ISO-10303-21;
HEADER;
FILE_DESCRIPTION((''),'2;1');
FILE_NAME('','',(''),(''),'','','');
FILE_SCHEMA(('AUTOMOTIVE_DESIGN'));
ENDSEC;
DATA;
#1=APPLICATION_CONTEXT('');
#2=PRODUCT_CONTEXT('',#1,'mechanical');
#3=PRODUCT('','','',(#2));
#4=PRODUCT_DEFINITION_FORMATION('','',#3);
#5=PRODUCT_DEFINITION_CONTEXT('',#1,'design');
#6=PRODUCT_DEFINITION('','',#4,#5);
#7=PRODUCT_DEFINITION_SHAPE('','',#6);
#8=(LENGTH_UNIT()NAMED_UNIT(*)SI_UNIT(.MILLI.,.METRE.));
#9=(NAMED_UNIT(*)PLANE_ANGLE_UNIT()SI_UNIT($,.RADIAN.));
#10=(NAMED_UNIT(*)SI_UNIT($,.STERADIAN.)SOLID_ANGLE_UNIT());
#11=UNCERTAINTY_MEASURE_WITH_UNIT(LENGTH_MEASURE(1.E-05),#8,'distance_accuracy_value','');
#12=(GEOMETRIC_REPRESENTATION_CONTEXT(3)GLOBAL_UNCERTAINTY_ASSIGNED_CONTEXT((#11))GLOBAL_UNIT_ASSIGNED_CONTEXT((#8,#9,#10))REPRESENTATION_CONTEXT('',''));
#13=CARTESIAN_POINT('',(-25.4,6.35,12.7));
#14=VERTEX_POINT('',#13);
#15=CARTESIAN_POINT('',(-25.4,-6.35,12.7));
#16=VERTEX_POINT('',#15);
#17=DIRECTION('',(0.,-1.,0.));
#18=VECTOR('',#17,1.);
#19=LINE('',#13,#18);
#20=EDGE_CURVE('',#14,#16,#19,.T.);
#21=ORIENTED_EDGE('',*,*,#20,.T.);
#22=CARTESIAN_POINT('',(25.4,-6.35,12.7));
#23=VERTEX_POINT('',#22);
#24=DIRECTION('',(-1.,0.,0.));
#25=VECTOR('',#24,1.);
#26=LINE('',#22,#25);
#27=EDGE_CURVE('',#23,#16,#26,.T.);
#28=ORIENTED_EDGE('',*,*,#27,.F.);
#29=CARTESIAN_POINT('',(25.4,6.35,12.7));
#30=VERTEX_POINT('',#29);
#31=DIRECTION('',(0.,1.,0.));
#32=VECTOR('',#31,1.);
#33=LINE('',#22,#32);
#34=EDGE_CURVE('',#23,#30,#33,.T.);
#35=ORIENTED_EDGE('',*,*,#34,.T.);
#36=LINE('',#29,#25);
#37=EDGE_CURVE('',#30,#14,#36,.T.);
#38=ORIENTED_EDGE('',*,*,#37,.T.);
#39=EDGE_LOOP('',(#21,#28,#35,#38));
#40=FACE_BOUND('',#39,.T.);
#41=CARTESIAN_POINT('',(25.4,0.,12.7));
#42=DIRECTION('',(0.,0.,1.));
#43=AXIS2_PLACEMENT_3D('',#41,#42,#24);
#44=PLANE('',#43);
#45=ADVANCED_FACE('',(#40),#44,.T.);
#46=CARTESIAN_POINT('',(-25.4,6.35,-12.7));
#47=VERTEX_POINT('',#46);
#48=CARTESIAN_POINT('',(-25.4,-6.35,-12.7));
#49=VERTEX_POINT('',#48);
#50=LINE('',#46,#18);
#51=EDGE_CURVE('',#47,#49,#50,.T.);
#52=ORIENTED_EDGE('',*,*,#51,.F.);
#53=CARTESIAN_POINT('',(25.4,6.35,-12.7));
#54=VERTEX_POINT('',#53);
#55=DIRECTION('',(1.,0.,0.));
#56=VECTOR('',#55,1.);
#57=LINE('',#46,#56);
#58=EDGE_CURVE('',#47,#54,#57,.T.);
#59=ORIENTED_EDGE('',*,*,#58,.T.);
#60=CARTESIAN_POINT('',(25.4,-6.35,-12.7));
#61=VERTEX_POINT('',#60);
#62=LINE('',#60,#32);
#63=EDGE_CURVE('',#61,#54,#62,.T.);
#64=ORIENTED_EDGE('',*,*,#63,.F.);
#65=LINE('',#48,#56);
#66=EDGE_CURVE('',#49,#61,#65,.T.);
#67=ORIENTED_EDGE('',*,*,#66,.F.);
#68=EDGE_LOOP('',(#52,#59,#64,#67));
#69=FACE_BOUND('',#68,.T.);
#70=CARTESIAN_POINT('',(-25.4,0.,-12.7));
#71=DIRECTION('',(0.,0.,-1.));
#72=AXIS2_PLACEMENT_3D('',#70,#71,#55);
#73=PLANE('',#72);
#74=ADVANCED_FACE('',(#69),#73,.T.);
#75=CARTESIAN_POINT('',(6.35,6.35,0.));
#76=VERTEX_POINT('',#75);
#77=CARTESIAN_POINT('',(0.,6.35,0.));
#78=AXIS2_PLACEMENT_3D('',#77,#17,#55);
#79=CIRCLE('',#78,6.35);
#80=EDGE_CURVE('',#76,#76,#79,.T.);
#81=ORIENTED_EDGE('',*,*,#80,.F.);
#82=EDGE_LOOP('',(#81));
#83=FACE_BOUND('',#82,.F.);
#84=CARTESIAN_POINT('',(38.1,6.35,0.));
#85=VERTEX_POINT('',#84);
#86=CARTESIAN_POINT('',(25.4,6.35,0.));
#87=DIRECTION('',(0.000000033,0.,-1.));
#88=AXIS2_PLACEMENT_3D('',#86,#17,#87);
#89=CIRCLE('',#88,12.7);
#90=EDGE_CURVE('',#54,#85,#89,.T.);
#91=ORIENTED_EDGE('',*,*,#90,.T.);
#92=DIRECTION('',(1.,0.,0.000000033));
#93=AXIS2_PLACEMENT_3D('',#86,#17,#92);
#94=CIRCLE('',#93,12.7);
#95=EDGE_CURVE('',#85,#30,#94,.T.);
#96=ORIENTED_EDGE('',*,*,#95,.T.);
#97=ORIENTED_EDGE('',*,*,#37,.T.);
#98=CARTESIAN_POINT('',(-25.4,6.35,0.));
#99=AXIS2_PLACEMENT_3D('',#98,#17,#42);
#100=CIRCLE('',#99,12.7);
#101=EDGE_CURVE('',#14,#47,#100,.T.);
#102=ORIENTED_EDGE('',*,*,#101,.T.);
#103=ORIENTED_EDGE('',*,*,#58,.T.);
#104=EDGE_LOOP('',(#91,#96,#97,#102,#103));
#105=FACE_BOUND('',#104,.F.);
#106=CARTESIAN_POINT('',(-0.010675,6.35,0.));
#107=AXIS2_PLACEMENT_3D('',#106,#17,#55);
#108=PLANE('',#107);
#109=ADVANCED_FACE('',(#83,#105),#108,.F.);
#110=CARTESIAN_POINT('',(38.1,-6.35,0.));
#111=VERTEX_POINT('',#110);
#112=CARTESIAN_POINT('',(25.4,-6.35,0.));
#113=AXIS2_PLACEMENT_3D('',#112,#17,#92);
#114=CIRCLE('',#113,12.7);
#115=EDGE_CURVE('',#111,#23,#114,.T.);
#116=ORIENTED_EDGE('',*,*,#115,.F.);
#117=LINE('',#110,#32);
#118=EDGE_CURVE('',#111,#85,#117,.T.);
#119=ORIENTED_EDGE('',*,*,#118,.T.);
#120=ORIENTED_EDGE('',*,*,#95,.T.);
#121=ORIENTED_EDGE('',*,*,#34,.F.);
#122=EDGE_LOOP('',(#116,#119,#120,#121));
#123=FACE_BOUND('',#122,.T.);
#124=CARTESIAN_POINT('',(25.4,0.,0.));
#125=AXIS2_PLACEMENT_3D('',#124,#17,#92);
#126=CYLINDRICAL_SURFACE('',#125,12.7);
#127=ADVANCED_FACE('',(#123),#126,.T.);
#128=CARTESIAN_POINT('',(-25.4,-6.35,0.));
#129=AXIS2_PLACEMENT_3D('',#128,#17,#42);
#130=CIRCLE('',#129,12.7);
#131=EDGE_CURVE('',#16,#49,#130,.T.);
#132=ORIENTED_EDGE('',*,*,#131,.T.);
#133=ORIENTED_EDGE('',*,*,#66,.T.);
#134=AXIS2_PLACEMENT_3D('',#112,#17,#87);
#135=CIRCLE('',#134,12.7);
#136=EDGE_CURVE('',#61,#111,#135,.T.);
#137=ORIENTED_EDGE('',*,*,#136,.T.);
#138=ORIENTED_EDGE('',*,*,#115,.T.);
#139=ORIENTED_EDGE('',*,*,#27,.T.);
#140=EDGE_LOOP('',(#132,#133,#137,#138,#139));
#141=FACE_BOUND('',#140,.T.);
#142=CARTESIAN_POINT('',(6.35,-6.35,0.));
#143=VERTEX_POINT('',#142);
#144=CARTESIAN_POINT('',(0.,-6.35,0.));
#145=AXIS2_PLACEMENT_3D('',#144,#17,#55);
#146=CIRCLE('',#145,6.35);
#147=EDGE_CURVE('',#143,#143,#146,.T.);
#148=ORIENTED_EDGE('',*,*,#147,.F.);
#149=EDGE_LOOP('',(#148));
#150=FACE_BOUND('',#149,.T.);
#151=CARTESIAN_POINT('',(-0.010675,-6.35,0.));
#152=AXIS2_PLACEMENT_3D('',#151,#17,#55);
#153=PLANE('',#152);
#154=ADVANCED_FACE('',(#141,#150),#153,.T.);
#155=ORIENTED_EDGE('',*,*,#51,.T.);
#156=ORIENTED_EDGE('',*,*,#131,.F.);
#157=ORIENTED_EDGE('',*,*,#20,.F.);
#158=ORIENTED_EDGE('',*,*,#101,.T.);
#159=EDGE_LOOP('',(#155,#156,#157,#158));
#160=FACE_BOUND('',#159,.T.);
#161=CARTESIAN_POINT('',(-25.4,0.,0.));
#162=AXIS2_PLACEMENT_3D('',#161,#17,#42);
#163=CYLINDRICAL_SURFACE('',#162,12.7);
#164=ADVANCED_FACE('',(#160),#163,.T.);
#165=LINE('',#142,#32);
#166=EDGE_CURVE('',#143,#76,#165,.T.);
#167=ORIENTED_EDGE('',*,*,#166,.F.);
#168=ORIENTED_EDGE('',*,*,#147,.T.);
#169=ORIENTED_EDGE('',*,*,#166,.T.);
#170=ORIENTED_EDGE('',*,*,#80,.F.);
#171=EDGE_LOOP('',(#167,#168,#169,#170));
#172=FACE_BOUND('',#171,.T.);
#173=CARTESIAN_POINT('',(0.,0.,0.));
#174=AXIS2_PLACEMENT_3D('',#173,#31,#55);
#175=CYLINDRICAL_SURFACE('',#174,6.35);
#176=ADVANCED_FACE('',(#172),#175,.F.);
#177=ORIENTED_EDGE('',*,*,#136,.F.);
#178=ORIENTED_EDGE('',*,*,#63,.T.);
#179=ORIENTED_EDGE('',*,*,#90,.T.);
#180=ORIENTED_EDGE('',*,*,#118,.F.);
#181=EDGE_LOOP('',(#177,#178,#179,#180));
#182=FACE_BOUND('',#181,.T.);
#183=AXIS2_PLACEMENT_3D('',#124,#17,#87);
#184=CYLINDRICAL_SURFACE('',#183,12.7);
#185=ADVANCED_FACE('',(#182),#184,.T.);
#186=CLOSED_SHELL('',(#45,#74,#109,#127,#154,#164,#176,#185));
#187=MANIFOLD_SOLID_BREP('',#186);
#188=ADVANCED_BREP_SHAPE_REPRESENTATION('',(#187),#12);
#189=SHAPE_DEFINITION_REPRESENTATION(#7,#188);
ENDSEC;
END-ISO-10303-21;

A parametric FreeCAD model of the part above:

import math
import FreeCAD as App
import Part
import Sketcher
Q = App.Units.Quantity

doc = App.newDocument("Part")
body = doc.addObject("PartDesign::Body", "Body")

sketch1 = body.newObject("Sketcher::SketchObject", "Sketch")
sketch1.AttachmentSupport = (doc.getObject("XZ_Plane"), [""])
sketch1.MapMode = "FlatFace"
sketch1.addGeometry([
    Part.LineSegment(App.Vector(25, 13, 0), App.Vector(-25, 13, 0)),
    Part.ArcOfCircle(Part.Circle(App.Vector(-25, 0, 0), App.Vector(0, 0, 1), 13), math.radians(90), math.radians(270)),
    Part.LineSegment(App.Vector(-25, -13, 0), App.Vector(25, -13, 0)),
    Part.ArcOfCircle(Part.Circle(App.Vector(25, 0, 0), App.Vector(0, 0, 1), 13), math.radians(-90), math.radians(0)),
    Part.ArcOfCircle(Part.Circle(App.Vector(25, 0, 0), App.Vector(0, 0, 1), 13), math.radians(0), math.radians(90)),
    Part.Circle(App.Vector(0, 0, 0), App.Vector(0, 0, 1), 6),
], False)
sketch1.addConstraint([
    Sketcher.Constraint("Tangent", 0, 2, 1, 1),
    Sketcher.Constraint("Tangent", 1, 2, 2, 1),
    Sketcher.Constraint("Tangent", 2, 2, 3, 1),
    Sketcher.Constraint("Tangent", 3, 2, 4, 1),
    Sketcher.Constraint("Tangent", 4, 2, 0, 1),
    Sketcher.Constraint("Horizontal", 0),
    Sketcher.Constraint("Horizontal", 2),
    Sketcher.Constraint("Coincident", 5, 3, -1, 1),
    Sketcher.Constraint("Equal", 1, 3),
    Sketcher.Constraint("Symmetric", 1, 3, 3, 3, -1, 1),
    Sketcher.Constraint("PointOnObject", 3, 2, -1),
    Sketcher.Constraint("Diameter", 5, Q("0.5 in")),
    Sketcher.Constraint("Radius", 1, Q("0.5 in")),
    Sketcher.Constraint("DistanceX", 0, 2, 0, 1, Q("2 in")),
])
pad1 = body.newObject("PartDesign::Pad", "Pad")
pad1.Profile = sketch1
pad1.Length = Q("0.5 in")
pad1.Midplane = True

doc.recompute()
